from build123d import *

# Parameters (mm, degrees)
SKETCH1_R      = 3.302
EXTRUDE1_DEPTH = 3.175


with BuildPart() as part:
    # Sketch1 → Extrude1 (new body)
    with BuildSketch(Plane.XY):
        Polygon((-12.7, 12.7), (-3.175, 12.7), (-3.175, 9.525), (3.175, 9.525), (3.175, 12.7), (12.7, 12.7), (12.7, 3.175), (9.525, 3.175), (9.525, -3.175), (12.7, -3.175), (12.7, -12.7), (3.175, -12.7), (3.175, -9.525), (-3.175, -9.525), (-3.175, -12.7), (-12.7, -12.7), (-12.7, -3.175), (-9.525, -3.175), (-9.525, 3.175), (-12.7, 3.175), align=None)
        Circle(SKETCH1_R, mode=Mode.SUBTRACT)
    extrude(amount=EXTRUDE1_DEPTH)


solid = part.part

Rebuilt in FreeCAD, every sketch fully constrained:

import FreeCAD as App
import Part
import Sketcher
from FreeCAD import Vector
Q = App.Units.Quantity

doc = App.newDocument("Part")
body = doc.addObject("PartDesign::Body", "Body")

# Sketch on XY plane
sketch1 = body.newObject("Sketcher::SketchObject", "Sketch")
sketch1.AttachmentSupport = (doc.getObject("XY_Plane"), [""])
sketch1.MapMode = "FlatFace"
sketch1.addGeometry([
    Part.LineSegment(Vector(-3.2, 12.7, 0), Vector(-12.7, 12.7, 0)),  # 0
    Part.LineSegment(Vector(-12.7, 12.7, 0), Vector(-12.7, 3.2, 0)),  # 1
    Part.LineSegment(Vector(-12.7, 3.2, 0), Vector(-9.5, 3.2, 0)),  # 2
    Part.LineSegment(Vector(-9.5, 3.2, 0), Vector(-9.5, -3.2, 0)),  # 3
    Part.LineSegment(Vector(-9.5, -3.2, 0), Vector(-12.7, -3.2, 0)),  # 4
    Part.LineSegment(Vector(-12.7, -3.2, 0), Vector(-12.7, -12.7, 0)),  # 5
    Part.LineSegment(Vector(-12.7, -12.7, 0), Vector(-3.2, -12.7, 0)),  # 6
    Part.LineSegment(Vector(-3.2, -12.7, 0), Vector(-3.2, -9.5, 0)),  # 7
    Part.LineSegment(Vector(-3.2, -9.5, 0), Vector(3.2, -9.5, 0)),  # 8
    Part.LineSegment(Vector(3.2, -9.5, 0), Vector(3.2, -12.7, 0)),  # 9
    Part.LineSegment(Vector(3.2, -12.7, 0), Vector(12.7, -12.7, 0)),  # 10
    Part.LineSegment(Vector(12.7, -12.7, 0), Vector(12.7, -3.2, 0)),  # 11
    Part.LineSegment(Vector(12.7, -3.2, 0), Vector(9.5, -3.2, 0)),  # 12
    Part.LineSegment(Vector(9.5, -3.2, 0), Vector(9.5, 3.2, 0)),  # 13
    Part.LineSegment(Vector(9.5, 3.2, 0), Vector(12.7, 3.2, 0)),  # 14
    Part.LineSegment(Vector(12.7, 3.2, 0), Vector(12.7, 12.7, 0)),  # 15
    Part.LineSegment(Vector(12.7, 12.7, 0), Vector(3.2, 12.7, 0)),  # 16
    Part.LineSegment(Vector(3.2, 12.7, 0), Vector(3.2, 9.5, 0)),  # 17
    Part.LineSegment(Vector(3.2, 9.5, 0), Vector(-3.2, 9.5, 0)),  # 18
    Part.LineSegment(Vector(-3.2, 9.5, 0), Vector(-3.2, 12.7, 0)),  # 19
    Part.Circle(Vector(0, 0, 0), Vector(0, 0, 1), 3.3),  # 20
], False)
sketch1.addConstraint([
    Sketcher.Constraint("Coincident", 0, 2, 1, 1),
    Sketcher.Constraint("Coincident", 1, 2, 2, 1),
    Sketcher.Constraint("Coincident", 2, 2, 3, 1),
    Sketcher.Constraint("Coincident", 3, 2, 4, 1),
    Sketcher.Constraint("Coincident", 4, 2, 5, 1),
    Sketcher.Constraint("Coincident", 5, 2, 6, 1),
    Sketcher.Constraint("Coincident", 6, 2, 7, 1),
    Sketcher.Constraint("Coincident", 7, 2, 8, 1),
    Sketcher.Constraint("Coincident", 8, 2, 9, 1),
    Sketcher.Constraint("Coincident", 9, 2, 10, 1),
    Sketcher.Constraint("Coincident", 10, 2, 11, 1),
    Sketcher.Constraint("Coincident", 11, 2, 12, 1),
    Sketcher.Constraint("Coincident", 12, 2, 13, 1),
    Sketcher.Constraint("Coincident", 13, 2, 14, 1),
    Sketcher.Constraint("Coincident", 14, 2, 15, 1),
    Sketcher.Constraint("Coincident", 15, 2, 16, 1),
    Sketcher.Constraint("Coincident", 16, 2, 17, 1),
    Sketcher.Constraint("Coincident", 17, 2, 18, 1),
    Sketcher.Constraint("Coincident", 18, 2, 19, 1),
    Sketcher.Constraint("Coincident", 19, 2, 0, 1),
    Sketcher.Constraint("Horizontal", 0),
    Sketcher.Constraint("Vertical", 1),
    Sketcher.Constraint("Horizontal", 2),
    Sketcher.Constraint("Vertical", 3),
    Sketcher.Constraint("Horizontal", 4),
    Sketcher.Constraint("Vertical", 5),
    Sketcher.Constraint("Horizontal", 6),
    Sketcher.Constraint("Vertical", 7),
    Sketcher.Constraint("Horizontal", 8),
    Sketcher.Constraint("Vertical", 9),
    Sketcher.Constraint("Horizontal", 10),
    Sketcher.Constraint("Vertical", 11),
    Sketcher.Constraint("Horizontal", 12),
    Sketcher.Constraint("Vertical", 13),
    Sketcher.Constraint("Horizontal", 14),
    Sketcher.Constraint("Vertical", 15),
    Sketcher.Constraint("Horizontal", 16),
    Sketcher.Constraint("Vertical", 17),
    Sketcher.Constraint("Horizontal", 18),
    Sketcher.Constraint("Vertical", 19),
    Sketcher.Constraint("Coincident", 20, 3, -1, 1),
    Sketcher.Constraint("Symmetric", 0, 2, 10, 2, -1, 1),
    Sketcher.Constraint("Symmetric", 2, 2, 12, 2, -1, 1),
    Sketcher.Constraint("Symmetric", 4, 2, 14, 2, -1, 1),
    Sketcher.Constraint("Symmetric", 6, 2, 16, 2, -1, 1),
    Sketcher.Constraint("Symmetric", 8, 2, 18, 2, -1, 1),
    Sketcher.Constraint("Symmetric", 6, 2, 9, 2, -2),
    Sketcher.Constraint("Symmetric", 4, 2, 11, 2, -2),
    Sketcher.Constraint("Equal", 16, 1),
    Sketcher.Constraint("Equal", 18, 3),
    Sketcher.Constraint("Equal", 14, 7),
    Sketcher.Constraint("Diameter", 20, Q("0.26 in")),
    Sketcher.Constraint("DistanceX", 8, 1, 8, 2, Q("0.25 in")),
    Sketcher.Constraint("DistanceX", 0, 2, -1, 1, Q("0.5 in")),
    Sketcher.Constraint("DistanceX", 3, 2, 8, 2, Q("0.5 in")),
])
pad1 = body.newObject("PartDesign::Pad", "Pad")
pad1.Profile = sketch1
pad1.Length = Q("0.125 in")

doc.recompute()
